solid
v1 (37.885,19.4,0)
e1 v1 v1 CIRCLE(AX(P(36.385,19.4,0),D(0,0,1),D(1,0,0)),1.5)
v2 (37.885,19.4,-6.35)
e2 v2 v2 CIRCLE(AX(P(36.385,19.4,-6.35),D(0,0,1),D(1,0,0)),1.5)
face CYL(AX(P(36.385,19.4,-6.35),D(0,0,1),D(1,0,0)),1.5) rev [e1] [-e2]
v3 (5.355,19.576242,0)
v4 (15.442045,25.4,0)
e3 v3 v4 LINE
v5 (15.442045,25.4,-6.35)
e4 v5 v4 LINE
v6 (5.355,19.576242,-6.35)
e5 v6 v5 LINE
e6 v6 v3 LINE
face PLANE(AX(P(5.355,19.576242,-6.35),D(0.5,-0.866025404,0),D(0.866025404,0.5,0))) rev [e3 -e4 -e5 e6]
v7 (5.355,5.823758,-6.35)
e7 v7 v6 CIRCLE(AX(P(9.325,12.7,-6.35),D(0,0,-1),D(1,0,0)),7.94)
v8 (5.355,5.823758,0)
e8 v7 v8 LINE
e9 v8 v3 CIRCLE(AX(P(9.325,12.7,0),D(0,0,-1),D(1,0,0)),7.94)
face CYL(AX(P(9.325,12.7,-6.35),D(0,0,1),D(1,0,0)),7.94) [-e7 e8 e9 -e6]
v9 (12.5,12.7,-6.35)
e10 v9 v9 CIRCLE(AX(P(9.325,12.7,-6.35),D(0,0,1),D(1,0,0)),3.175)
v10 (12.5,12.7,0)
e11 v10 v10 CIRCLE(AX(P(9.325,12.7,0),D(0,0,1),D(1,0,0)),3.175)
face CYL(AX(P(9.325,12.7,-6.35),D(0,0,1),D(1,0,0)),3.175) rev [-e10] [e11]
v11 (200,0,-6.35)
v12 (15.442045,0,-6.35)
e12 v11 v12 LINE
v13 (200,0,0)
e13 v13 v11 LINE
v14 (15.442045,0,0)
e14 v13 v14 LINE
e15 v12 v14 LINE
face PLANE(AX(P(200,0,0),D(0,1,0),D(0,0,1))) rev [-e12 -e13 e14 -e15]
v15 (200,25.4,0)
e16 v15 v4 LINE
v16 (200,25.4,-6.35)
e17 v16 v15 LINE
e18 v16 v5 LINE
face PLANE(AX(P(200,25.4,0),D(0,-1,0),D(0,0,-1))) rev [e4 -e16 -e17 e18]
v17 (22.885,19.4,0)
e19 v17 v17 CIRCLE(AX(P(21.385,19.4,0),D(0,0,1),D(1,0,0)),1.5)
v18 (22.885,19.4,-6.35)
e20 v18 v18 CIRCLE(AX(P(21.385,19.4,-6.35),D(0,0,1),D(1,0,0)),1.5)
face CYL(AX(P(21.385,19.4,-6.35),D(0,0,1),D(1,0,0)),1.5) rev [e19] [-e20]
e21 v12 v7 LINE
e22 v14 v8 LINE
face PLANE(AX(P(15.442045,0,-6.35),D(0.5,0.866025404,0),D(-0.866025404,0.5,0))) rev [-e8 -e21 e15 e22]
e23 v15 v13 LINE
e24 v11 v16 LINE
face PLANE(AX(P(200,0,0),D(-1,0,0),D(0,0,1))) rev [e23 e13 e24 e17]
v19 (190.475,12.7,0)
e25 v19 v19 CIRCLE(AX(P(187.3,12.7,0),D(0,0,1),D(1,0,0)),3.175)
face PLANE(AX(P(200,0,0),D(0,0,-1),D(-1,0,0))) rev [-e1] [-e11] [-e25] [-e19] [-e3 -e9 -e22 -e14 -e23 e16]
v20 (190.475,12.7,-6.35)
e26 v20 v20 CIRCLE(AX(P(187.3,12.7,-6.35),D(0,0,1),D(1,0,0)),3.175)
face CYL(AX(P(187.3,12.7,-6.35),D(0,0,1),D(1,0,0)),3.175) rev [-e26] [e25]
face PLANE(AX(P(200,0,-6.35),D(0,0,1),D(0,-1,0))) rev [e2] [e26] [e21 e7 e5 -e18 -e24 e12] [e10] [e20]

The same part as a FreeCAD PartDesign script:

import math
import FreeCAD as App
import Part
import Sketcher

V = App.Vector
Q = App.Units.Quantity

doc = App.newDocument("Part")
body = doc.addObject("PartDesign::Body", "Body")

sketch1 = doc.addObject("Sketcher::SketchObject", "Sketch")
body.addObject(sketch1)
sketch1.AttachmentSupport = (doc.YZ_Plane, [""])
sketch1.MapMode = "FlatFace"
sketch1.addGeometry(Part.LineSegment(V(25.4, 0, 0), V(0, 0, 0)), False)
sketch1.addGeometry(Part.LineSegment(V(0, 0, 0), V(0, -6.35, 0)), False)
sketch1.addGeometry(Part.LineSegment(V(0, -6.35, 0), V(25.4, -6.35, 0)), False)
sketch1.addGeometry(Part.LineSegment(V(25.4, -6.35, 0), V(25.4, 0, 0)), False)
sketch1.addConstraint(Sketcher.Constraint("Coincident", 0, 2, 1, 1))
sketch1.addConstraint(Sketcher.Constraint("Coincident", 1, 2, 2, 1))
sketch1.addConstraint(Sketcher.Constraint("Coincident", 2, 2, 3, 1))
sketch1.addConstraint(Sketcher.Constraint("Coincident", 3, 2, 0, 1))
sketch1.addConstraint(Sketcher.Constraint("Horizontal", 0))
sketch1.addConstraint(Sketcher.Constraint("Vertical", 1))
sketch1.addConstraint(Sketcher.Constraint("Horizontal", 2))
sketch1.addConstraint(Sketcher.Constraint("Vertical", 3))
sketch1.addConstraint(Sketcher.Constraint("Coincident", 0, 2, -1, 1))
sketch1.addConstraint(Sketcher.Constraint("DistanceX", 0, 2, 0, 1, 25.4))
sketch1.addConstraint(Sketcher.Constraint("DistanceY", 1, 2, 1, 1, 6.35))
pad1 = doc.addObject("PartDesign::Pad", "Pad")
body.addObject(pad1)
pad1.Profile = sketch1
pad1.Length = 200

sketch2 = doc.addObject("Sketcher::SketchObject", "Sketch001")
body.addObject(sketch2)
sketch2.AttachmentSupport = (doc.XY_Plane, [""])
sketch2.MapMode = "FlatFace"
sketch2.addGeometry(Part.Circle(V(187.3, 12.7, 0), V(0, 0, 1), 3.175), False)
sketch2.addConstraint(Sketcher.Constraint("Diameter", 0, 6.35))
sketch2.addConstraint(Sketcher.Constraint("DistanceX", -1, 1, 0, 3, 187.3))
sketch2.addConstraint(Sketcher.Constraint("DistanceY", -1, 1, 0, 3, 12.7))
pocket1 = doc.addObject("PartDesign::Pocket", "Pocket")
body.addObject(pocket1)
pocket1.Profile = sketch2
pocket1.Type = "ThroughAll"

sketch3 = doc.addObject("Sketcher::SketchObject", "Sketch002")
body.addObject(sketch3)
sketch3.AttachmentSupport = (doc.XY_Plane, [""])
sketch3.MapMode = "FlatFace"
sketch3.addGeometry(Part.Circle(V(9.325, 12.7, 0), V(0, 0, 1), 3.175), False)
sketch3.addGeometry(Part.LineSegment(V(15.442045, 25.4, 0), V(-1, 25.4, 0)), False)
sketch3.addGeometry(Part.LineSegment(V(-1, 25.4, 0), V(-1, 0, 0)), False)
sketch3.addGeometry(Part.LineSegment(V(-1, 0, 0), V(15.442045, 0, 0)), False)
sketch3.addGeometry(Part.LineSegment(V(15.442045, 0, 0), V(5.355, 5.823758, 0)), False)
sketch3.addGeometry(Part.ArcOfCircle(Part.Circle(V(9.325, 12.7, 0), V(0, 0, 1), 7.94), math.radians(120.000003), math.radians(239.999997)), False)
sketch3.addGeometry(Part.LineSegment(V(5.355, 19.576242, 0), V(15.442045, 25.4, 0)), False)
sketch3.addConstraint(Sketcher.Constraint("Coincident", 1, 2, 2, 1))
sketch3.addConstraint(Sketcher.Constraint("Coincident", 2, 2, 3, 1))
sketch3.addConstraint(Sketcher.Constraint("Coincident", 3, 2, 4, 1))
sketch3.addConstraint(Sketcher.Constraint("Tangent", 4, 2, 5, 2))
sketch3.addConstraint(Sketcher.Constraint("Tangent", 5, 1, 6, 1))
sketch3.addConstraint(Sketcher.Constraint("Coincident", 6, 2, 1, 1))
sketch3.addConstraint(Sketcher.Constraint("Horizontal", 1))
sketch3.addConstraint(Sketcher.Constraint("Vertical", 2))
sketch3.addConstraint(Sketcher.Constraint("Horizontal", 3))
sketch3.addConstraint(Sketcher.Constraint("Coincident", 5, 3, 0, 3))
sketch3.addConstraint(Sketcher.Constraint("PointOnObject", 2, 2, -1))
sketch3.addConstraint(Sketcher.Constraint("Vertical", 4, 2, 5, 1))
sketch3.addConstraint(Sketcher.Constraint("Vertical", 3, 2, 6, 2))
sketch3.addConstraint(Sketcher.Constraint("Diameter", 0, 6.35))
sketch3.addConstraint(Sketcher.Constraint("Angle", 4, Q("150 deg")))
sketch3.addConstraint(Sketcher.Constraint("Radius", 5, 7.94))
sketch3.addConstraint(Sketcher.Constraint("DistanceY", 2, 2, 2, 1, 25.4))
sketch3.addConstraint(Sketcher.Constraint("DistanceX", 1, 2, -1, 1, 1.0))
sketch3.addConstraint(Sketcher.Constraint("DistanceX", -1, 1, 0, 3, 9.325))
pocket2 = doc.addObject("PartDesign::Pocket", "Pocket001")
body.addObject(pocket2)
pocket2.Profile = sketch3
pocket2.Type = "ThroughAll"

sketch4 = doc.addObject("Sketcher::SketchObject", "Sketch003")
body.addObject(sketch4)
sketch4.AttachmentSupport = (doc.XY_Plane, [""])
sketch4.MapMode = "FlatFace"
sketch4.addGeometry(Part.Circle(V(21.385, 19.4, 0), V(0, 0, 1), 1.5), False)
sketch4.addGeometry(Part.Circle(V(36.385, 19.4, 0), V(0, 0, 1), 1.5), False)
sketch4.addConstraint(Sketcher.Constraint("Equal", 0, 1))
sketch4.addConstraint(Sketcher.Constraint("Horizontal", 0, 3, 1, 3))
sketch4.addConstraint(Sketcher.Constraint("Diameter", 0, 3.0))
sketch4.addConstraint(Sketcher.Constraint("DistanceX", 0, 3, 1, 3, 15.0))
sketch4.addConstraint(Sketcher.Constraint("DistanceY", -1, 1, 0, 3, 19.4))
sketch4.addConstraint(Sketcher.Constraint("DistanceX", -1, 1, 0, 3, 21.385))
pocket3 = doc.addObject("PartDesign::Pocket", "Pocket002")
body.addObject(pocket3)
pocket3.Profile = sketch4
pocket3.Type = "ThroughAll"

doc.recompute()
